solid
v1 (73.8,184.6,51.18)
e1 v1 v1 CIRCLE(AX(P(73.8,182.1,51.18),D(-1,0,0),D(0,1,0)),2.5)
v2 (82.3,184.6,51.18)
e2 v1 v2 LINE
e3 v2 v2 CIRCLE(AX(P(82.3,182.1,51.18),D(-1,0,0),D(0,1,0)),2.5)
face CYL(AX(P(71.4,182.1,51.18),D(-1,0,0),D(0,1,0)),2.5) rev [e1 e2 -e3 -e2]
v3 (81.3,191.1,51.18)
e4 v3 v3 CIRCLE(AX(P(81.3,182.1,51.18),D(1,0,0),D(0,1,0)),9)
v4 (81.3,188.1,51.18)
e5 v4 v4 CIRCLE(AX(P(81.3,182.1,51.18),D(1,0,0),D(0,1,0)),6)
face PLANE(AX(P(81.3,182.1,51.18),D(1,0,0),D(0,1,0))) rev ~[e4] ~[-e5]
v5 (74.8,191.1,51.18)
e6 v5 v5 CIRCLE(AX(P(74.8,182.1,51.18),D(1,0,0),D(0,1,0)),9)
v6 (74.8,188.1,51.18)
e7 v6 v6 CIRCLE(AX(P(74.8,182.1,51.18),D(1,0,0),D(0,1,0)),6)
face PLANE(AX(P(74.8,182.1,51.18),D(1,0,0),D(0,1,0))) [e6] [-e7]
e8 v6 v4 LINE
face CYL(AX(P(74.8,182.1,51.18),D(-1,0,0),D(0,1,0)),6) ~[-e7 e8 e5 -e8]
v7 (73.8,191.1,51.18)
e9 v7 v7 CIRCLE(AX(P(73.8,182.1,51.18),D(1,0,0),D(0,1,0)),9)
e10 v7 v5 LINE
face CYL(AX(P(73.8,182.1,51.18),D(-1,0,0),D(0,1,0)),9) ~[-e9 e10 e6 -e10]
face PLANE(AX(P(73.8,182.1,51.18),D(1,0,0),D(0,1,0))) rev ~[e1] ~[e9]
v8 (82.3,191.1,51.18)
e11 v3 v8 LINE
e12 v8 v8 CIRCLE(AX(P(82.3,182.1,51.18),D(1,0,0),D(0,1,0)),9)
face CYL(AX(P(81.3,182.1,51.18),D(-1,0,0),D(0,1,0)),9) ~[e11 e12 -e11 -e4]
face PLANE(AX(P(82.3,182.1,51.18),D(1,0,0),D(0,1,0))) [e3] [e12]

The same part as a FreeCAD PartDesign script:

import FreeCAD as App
import Part
import Sketcher
from FreeCAD import Vector
Q = App.Units.Quantity

doc = App.newDocument("Part")
body = doc.addObject("PartDesign::Body", "Body")

# Sketch on XY plane
sketch1 = doc.addObject("Sketcher::SketchObject", "Sketch")
body.addObject(sketch1)
sketch1.AttachmentSupport = (doc.XY_Plane, [""])
sketch1.MapMode = "FlatFace"
sketch1.AttachmentOffset = App.Placement(Vector(0, 0, -2.4), App.Rotation())
sketch1.addGeometry(Part.Circle(Vector(0, 0, 0), Vector(0, 0, 1), 2.5), False)
sketch1.addConstraint(Sketcher.Constraint("Coincident", 0, 3, -1, 1))
sketch1.addConstraint(Sketcher.Constraint("Diameter", 0, Q("5 mm")))
pad1 = doc.addObject("PartDesign::Pad", "Pad")
body.addObject(pad1)
pad1.Profile = sketch1
pad1.Length = 14.5
body2 = doc.addObject("PartDesign::Body", "Body001")

# Sketch on XY plane
sketch2 = doc.addObject("Sketcher::SketchObject", "Sketch001")
body2.addObject(sketch2)
sketch2.AttachmentSupport = (doc.getObject("XY_Plane001"), [""])
sketch2.MapMode = "FlatFace"
sketch2.AttachmentOffset = App.Placement(Vector(0, 0, 1), App.Rotation())
sketch2.addGeometry(Part.Circle(Vector(0, 0, 0), Vector(0, 0, 1), 6), False)
sketch2.addConstraint(Sketcher.Constraint("Coincident", 0, 3, -1, 1))
sketch2.addConstraint(Sketcher.Constraint("Diameter", 0, Q("12 mm")))
pad2 = doc.addObject("PartDesign::Pad", "Pad001")
body2.addObject(pad2)
pad2.Profile = sketch2
pad2.Length = 6.5
body3 = doc.addObject("PartDesign::Body", "Body002")

# Sketch on XY plane
sketch3 = doc.addObject("Sketcher::SketchObject", "Sketch002")
body3.addObject(sketch3)
sketch3.AttachmentSupport = (doc.getObject("XY_Plane002"), [""])
sketch3.MapMode = "FlatFace"
sketch3.AttachmentOffset = App.Placement(Vector(0, 0, 7.5), App.Rotation())
sketch3.addGeometry(Part.Circle(Vector(0, 0, 0), Vector(0, 0, 1), 9), False)
sketch3.addConstraint(Sketcher.Constraint("Coincident", 0, 3, -1, 1))
sketch3.addConstraint(Sketcher.Constraint("Diameter", 0, Q("18 mm")))
pad3 = doc.addObject("PartDesign::Pad", "Pad002")
body3.addObject(pad3)
pad3.Profile = sketch3
pad3.Length = 1
body4 = doc.addObject("PartDesign::Body", "Body003")

# Sketch on XY plane
sketch4 = doc.addObject("Sketcher::SketchObject", "Sketch003")
body4.addObject(sketch4)
sketch4.AttachmentSupport = (doc.getObject("XY_Plane003"), [""])
sketch4.MapMode = "FlatFace"
sketch4.addGeometry(Part.Circle(Vector(0, 0, 0), Vector(0, 0, 1), 9), False)
sketch4.addConstraint(Sketcher.Constraint("Coincident", 0, 3, -1, 1))
sketch4.addConstraint(Sketcher.Constraint("Diameter", 0, Q("18 mm")))
pad4 = doc.addObject("PartDesign::Pad", "Pad003")
body4.addObject(pad4)
pad4.Profile = sketch4
pad4.Length = 1
doc.recompute()

boolean = doc.addObject("PartDesign::Boolean", "Boolean")
body4.addObject(boolean)
boolean.Type = "Fuse"
boolean.addObjects([body2])
doc.recompute()

boolean2 = doc.addObject("PartDesign::Boolean", "Boolean001")
body4.addObject(boolean2)
boolean2.Type = "Fuse"
boolean2.addObjects([body3])
doc.recompute()

boolean3 = doc.addObject("PartDesign::Boolean", "Boolean002")
body4.addObject(boolean3)
boolean3.Type = "Cut"
boolean3.addObjects([body])
body5 = doc.addObject("PartDesign::Body", "Body004")
doc.recompute()

body4.Placement = App.Placement(Vector(0, 0, 0), App.Rotation(Vector(1, 0, 0), 90))
boolean4 = doc.addObject("PartDesign::Boolean", "Boolean003")
body5.addObject(boolean4)
boolean4.Type = "Fuse"
boolean4.addObjects([body4])
body6 = doc.addObject("PartDesign::Body", "Body005")
doc.recompute()

body5.Placement = App.Placement(Vector(73.8, 182.1, 51.18), App.Rotation(Vector(0, 0, 1), 90))
boolean5 = doc.addObject("PartDesign::Boolean", "Boolean004")
body6.addObject(boolean5)
boolean5.Type = "Fuse"
boolean5.addObjects([body5])

doc.recompute()
